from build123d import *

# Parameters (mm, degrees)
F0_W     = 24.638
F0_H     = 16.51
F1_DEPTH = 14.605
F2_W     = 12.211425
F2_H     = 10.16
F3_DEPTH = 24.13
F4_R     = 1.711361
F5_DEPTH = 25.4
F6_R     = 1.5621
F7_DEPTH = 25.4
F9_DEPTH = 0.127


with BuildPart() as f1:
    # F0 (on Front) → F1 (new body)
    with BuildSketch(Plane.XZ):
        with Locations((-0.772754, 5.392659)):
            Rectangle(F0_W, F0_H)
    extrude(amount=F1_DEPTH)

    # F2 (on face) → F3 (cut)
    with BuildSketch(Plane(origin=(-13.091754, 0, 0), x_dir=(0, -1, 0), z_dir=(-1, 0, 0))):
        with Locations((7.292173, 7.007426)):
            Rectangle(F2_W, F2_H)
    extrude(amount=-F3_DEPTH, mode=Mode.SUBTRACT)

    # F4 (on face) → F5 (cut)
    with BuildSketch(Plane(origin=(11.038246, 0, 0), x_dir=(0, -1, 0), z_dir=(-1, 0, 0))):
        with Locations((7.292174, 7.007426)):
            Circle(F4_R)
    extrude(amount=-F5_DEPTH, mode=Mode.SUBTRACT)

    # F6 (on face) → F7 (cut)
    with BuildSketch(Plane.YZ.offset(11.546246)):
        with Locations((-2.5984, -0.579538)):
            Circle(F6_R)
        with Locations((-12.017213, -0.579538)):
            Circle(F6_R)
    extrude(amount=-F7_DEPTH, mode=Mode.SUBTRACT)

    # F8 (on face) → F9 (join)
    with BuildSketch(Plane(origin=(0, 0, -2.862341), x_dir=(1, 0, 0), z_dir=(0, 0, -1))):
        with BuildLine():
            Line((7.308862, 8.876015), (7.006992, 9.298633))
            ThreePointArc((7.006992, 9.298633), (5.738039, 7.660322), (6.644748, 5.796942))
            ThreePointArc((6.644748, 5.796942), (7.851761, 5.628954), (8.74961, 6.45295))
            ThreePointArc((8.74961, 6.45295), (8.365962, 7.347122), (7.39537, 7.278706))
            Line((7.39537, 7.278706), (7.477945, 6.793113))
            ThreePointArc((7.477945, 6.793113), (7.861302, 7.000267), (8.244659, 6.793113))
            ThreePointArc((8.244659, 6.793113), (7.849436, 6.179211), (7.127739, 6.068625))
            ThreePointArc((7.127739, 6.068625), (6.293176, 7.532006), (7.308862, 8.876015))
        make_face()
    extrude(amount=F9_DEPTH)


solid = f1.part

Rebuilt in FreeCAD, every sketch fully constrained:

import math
import FreeCAD as App
import Part
import Sketcher

V = App.Vector
Q = App.Units.Quantity

doc = App.newDocument("Part")
params = doc.addObject("Spreadsheet::Sheet", "Params")
for row, (alias, value) in enumerate([
    ("sketch1_width", "0.97 in"),
    ("sketch1_height", "0.65 in"),
    ("pad1_length", "0.575 in"),
    ("sketch2_height", "0.4 in"),
    ("pocket1_length", "0.95 in"),
    ("pocket2_length", "1 in"),
    ("sketch4_diameter", "0.123 in"),
    ("pocket3_length", "1 in"),
    ("pad2_length", "0.005 in"),
], start=1):
    params.set(f"A{row}", alias)
    params.set(f"B{row}", "=" + value)
    params.setAlias(f"B{row}", alias)

body = doc.addObject("PartDesign::Body", "Body")

# Sketch on XZ plane
sketch1 = doc.addObject("Sketcher::SketchObject", "Sketch")
body.addObject(sketch1)
sketch1.AttachmentSupport = (doc.XZ_Plane, [""])
sketch1.MapMode = "FlatFace"
sketch1.addGeometry([
    Part.LineSegment(V(-13, 14, 0), V(-13, -3, 0)),
    Part.LineSegment(V(-13, -3, 0), V(12, -3, 0)),
    Part.LineSegment(V(12, -3, 0), V(12, 14, 0)),
    Part.LineSegment(V(12, 14, 0), V(-13, 14, 0)),
], False)
sketch1.addConstraint([
    Sketcher.Constraint("Coincident", 0, 2, 1, 1),
    Sketcher.Constraint("Coincident", 1, 2, 2, 1),
    Sketcher.Constraint("Coincident", 2, 2, 3, 1),
    Sketcher.Constraint("Coincident", 3, 2, 0, 1),
    Sketcher.Constraint("Vertical", 0),
    Sketcher.Constraint("Horizontal", 1),
    Sketcher.Constraint("Vertical", 2),
    Sketcher.Constraint("Horizontal", 3),
    Sketcher.Constraint("DistanceX", 1, 1, 1, 2, Q("0.97 in")),
    Sketcher.Constraint("DistanceY", 0, 2, 0, 1, Q("0.65 in")),
    Sketcher.Constraint("DistanceY", 0, 2, -1, 1, Q("2.862341 mm")),
    Sketcher.Constraint("DistanceX", 0, 2, -1, 1, Q("13.091754 mm")),
])
sketch1.setExpression("Constraints[8]", "Params.sketch1_width")
sketch1.setExpression("Constraints[9]", "Params.sketch1_height")
pad1 = doc.addObject("PartDesign::Pad", "Pad")
body.addObject(pad1)
pad1.Profile = sketch1
pad1.setExpression("Length", "Params.pad1_length")

# Sketch on YZ plane
sketch2 = doc.addObject("Sketcher::SketchObject", "Sketch001")
body.addObject(sketch2)
sketch2.AttachmentSupport = (doc.YZ_Plane, [""])
sketch2.MapMode = "FlatFace"
sketch2.AttachmentOffset = App.Placement(V(0, 0, -13.091754), App.Rotation())
sketch2.addGeometry([
    Part.LineSegment(V(-1, 12, 0), V(-1, 2, 0)),
    Part.LineSegment(V(-1, 2, 0), V(-13, 2, 0)),
    Part.LineSegment(V(-13, 2, 0), V(-13, 12, 0)),
    Part.LineSegment(V(-13, 12, 0), V(-1, 12, 0)),
], False)
sketch2.addConstraint([
    Sketcher.Constraint("Coincident", 0, 2, 1, 1),
    Sketcher.Constraint("Coincident", 1, 2, 2, 1),
    Sketcher.Constraint("Coincident", 2, 2, 3, 1),
    Sketcher.Constraint("Coincident", 3, 2, 0, 1),
    Sketcher.Constraint("Vertical", 0),
    Sketcher.Constraint("Horizontal", 1),
    Sketcher.Constraint("Vertical", 2),
    Sketcher.Constraint("Horizontal", 3),
    Sketcher.Constraint("DistanceY", 0, 2, 0, 1, Q("0.4 in")),
    Sketcher.Constraint("DistanceX", 1, 2, 1, 1, Q("12.211425 mm")),
    Sketcher.Constraint("DistanceX", 0, 2, -1, 1, Q("1.18646 mm")),
    Sketcher.Constraint("DistanceY", -1, 1, 0, 2, Q("1.927426 mm")),
])
sketch2.setExpression("Constraints[8]", "Params.sketch2_height")
pocket1 = doc.addObject("PartDesign::Pocket", "Pocket")
body.addObject(pocket1)
pocket1.Profile = sketch2
pocket1.setExpression("Length", "Params.pocket1_length")
pocket1.Reversed = True

# Sketch on YZ plane
sketch3 = doc.addObject("Sketcher::SketchObject", "Sketch002")
body.addObject(sketch3)
sketch3.AttachmentSupport = (doc.YZ_Plane, [""])
sketch3.MapMode = "FlatFace"
sketch3.AttachmentOffset = App.Placement(V(0, 0, 11.038246), App.Rotation())
sketch3.addGeometry(Part.Circle(V(-7.3, 7, 0), V(0, 0, 1), 1.7), False)
sketch3.addConstraint([
    Sketcher.Constraint("Diameter", 0, Q("3.422722 mm")),
    Sketcher.Constraint("DistanceX", 0, 3, -1, 1, Q("7.292174 mm")),
    Sketcher.Constraint("DistanceY", -1, 1, 0, 3, Q("7.007426 mm")),
])
pocket2 = doc.addObject("PartDesign::Pocket", "Pocket001")
body.addObject(pocket2)
pocket2.Profile = sketch3
pocket2.setExpression("Length", "Params.pocket2_length")
pocket2.Reversed = True

# Sketch on YZ plane
sketch4 = doc.addObject("Sketcher::SketchObject", "Sketch003")
body.addObject(sketch4)
sketch4.AttachmentSupport = (doc.YZ_Plane, [""])
sketch4.MapMode = "FlatFace"
sketch4.AttachmentOffset = App.Placement(V(0, 0, 11.546246), App.Rotation())
sketch4.addGeometry([
    Part.Circle(V(-2.6, -0.6, 0), V(0, 0, 1), 1.6),
    Part.Circle(V(-12, -0.6, 0), V(0, 0, 1), 1.6),
], False)
sketch4.addConstraint([
    Sketcher.Constraint("Equal", 0, 1),
    Sketcher.Constraint("Horizontal", 0, 3, 1, 3),
    Sketcher.Constraint("Diameter", 0, Q("0.123 in")),
    Sketcher.Constraint("DistanceX", 0, 3, -1, 1, Q("2.5984 mm")),
    Sketcher.Constraint("DistanceY", 0, 3, -1, 1, Q("0.579538 mm")),
    Sketcher.Constraint("DistanceX", 1, 3, -1, 1, Q("12.017213 mm")),
])
sketch4.setExpression("Constraints[2]", "Params.sketch4_diameter")
pocket3 = doc.addObject("PartDesign::Pocket", "Pocket002")
body.addObject(pocket3)
pocket3.Profile = sketch4
pocket3.setExpression("Length", "Params.pocket3_length")

# Sketch on XY plane
sketch5 = doc.addObject("Sketcher::SketchObject", "Sketch004")
body.addObject(sketch5)
sketch5.AttachmentSupport = (doc.XY_Plane, [""])
sketch5.MapMode = "FlatFace"
sketch5.AttachmentOffset = App.Placement(V(0, 0, -2.862341), App.Rotation())
sketch5.addGeometry([
    Part.LineSegment(V(7.31, -8.88, 0), V(7.01, -9.3, 0)),  # 0
    Part.ArcOfCircle(Part.Circle(V(7.69, -7.46, 0), V(0, 0, 1), 1.96), math.radians(122), math.radians(250)),  # 1
    Part.ArcOfCircle(Part.Circle(V(7.43, -6.99, 0), V(0, 0, 1), 1.43), math.radians(22), math.radians(123)),  # 2
    Part.ArcOfCircle(Part.Circle(V(7.93, -6.63, 0), V(0, 0, 1), 0.84), math.radians(-129), math.radians(12)),  # 3
    Part.LineSegment(V(7.4, -7.28, 0), V(7.48, -6.79, 0)),  # 4
    Part.ArcOfCircle(Part.Circle(V(7.86, -6.54, 0), V(0, 0, 1), 0.46), math.radians(-147), math.radians(-33)),  # 5
    Part.ArcOfCircle(Part.Circle(V(7.37, -6.92, 0), V(0, 0, 1), 0.89), math.radians(9), math.radians(106)),  # 6
    Part.ArcOfCircle(Part.Circle(V(7.82, -7.43, 0), V(0, 0, 1), 1.53), math.radians(117), math.radians(250)),  # 7
], False)
sketch5.addConstraint([
    Sketcher.Constraint("Coincident", 0, 2, 1, 2),
    Sketcher.Constraint("Coincident", 1, 1, 2, 2),
    Sketcher.Constraint("Coincident", 2, 1, 3, 2),
    Sketcher.Constraint("Coincident", 3, 1, 4, 1),
    Sketcher.Constraint("Coincident", 4, 2, 5, 1),
    Sketcher.Constraint("Coincident", 5, 2, 6, 1),
    Sketcher.Constraint("Coincident", 6, 2, 7, 1),
    Sketcher.Constraint("Coincident", 7, 2, 0, 1),
    Sketcher.Constraint("Horizontal", 4, 2, 5, 2),
    Sketcher.Constraint("Radius", 3, Q("0.83973 mm")),
    Sketcher.Constraint("Radius", 6, Q("0.888569 mm")),
    Sketcher.Constraint("DistanceX", -1, 1, 5, 3, Q("0.3095001 in")),
    Sketcher.Constraint("Radius", 1, Q("1.963315 mm")),
    Sketcher.Constraint("Radius", 2, Q("1.429294 mm")),
    Sketcher.Constraint("Radius", 5, Q("0.458295 mm")),
    Sketcher.Constraint("Radius", 7, Q("1.530654 mm")),
    Sketcher.Constraint("DistanceY", 1, 3, -1, 1, Q("7.458298 mm")),
    Sketcher.Constraint("DistanceX", 0, 2, 3, 3, Q("0.9218 mm")),
    Sketcher.Constraint("DistanceY", 2, 3, 4, 2, Q("0.200399 mm")),
    Sketcher.Constraint("DistanceX", -1, 1, 2, 3, Q("7.426479 mm")),
    Sketcher.Constraint("DistanceY", 2, 3, -1, 1, Q("6.993512 mm")),
    Sketcher.Constraint("DistanceY", 5, 3, -1, 1, Q("6.541972 mm")),
    Sketcher.Constraint("DistanceY", 7, 3, -1, 1, Q("7.433458 mm")),
    Sketcher.Constraint("DistanceY", 1, 1, -1, 1, Q("5.796942 mm")),
    Sketcher.Constraint("DistanceX", -1, 1, 2, 1, Q("8.74961 mm")),
    Sketcher.Constraint("DistanceX", -1, 1, 3, 1, Q("7.39537 mm")),
    Sketcher.Constraint("DistanceX", -1, 1, 6, 2, Q("7.127739 mm")),
    Sketcher.Constraint("DistanceX", -1, 1, 7, 2, Q("7.308862 mm")),
    Sketcher.Constraint("DistanceX", 1, 3, 3, 3, Q("0.23786 mm")),
    Sketcher.Constraint("DistanceY", 1, 3, 6, 3, Q("0.533612 mm")),
])
pad2 = doc.addObject("PartDesign::Pad", "Pad001")
body.addObject(pad2)
pad2.Profile = sketch5
pad2.setExpression("Length", "Params.pad2_length")
pad2.Reversed = True

doc.recompute()
